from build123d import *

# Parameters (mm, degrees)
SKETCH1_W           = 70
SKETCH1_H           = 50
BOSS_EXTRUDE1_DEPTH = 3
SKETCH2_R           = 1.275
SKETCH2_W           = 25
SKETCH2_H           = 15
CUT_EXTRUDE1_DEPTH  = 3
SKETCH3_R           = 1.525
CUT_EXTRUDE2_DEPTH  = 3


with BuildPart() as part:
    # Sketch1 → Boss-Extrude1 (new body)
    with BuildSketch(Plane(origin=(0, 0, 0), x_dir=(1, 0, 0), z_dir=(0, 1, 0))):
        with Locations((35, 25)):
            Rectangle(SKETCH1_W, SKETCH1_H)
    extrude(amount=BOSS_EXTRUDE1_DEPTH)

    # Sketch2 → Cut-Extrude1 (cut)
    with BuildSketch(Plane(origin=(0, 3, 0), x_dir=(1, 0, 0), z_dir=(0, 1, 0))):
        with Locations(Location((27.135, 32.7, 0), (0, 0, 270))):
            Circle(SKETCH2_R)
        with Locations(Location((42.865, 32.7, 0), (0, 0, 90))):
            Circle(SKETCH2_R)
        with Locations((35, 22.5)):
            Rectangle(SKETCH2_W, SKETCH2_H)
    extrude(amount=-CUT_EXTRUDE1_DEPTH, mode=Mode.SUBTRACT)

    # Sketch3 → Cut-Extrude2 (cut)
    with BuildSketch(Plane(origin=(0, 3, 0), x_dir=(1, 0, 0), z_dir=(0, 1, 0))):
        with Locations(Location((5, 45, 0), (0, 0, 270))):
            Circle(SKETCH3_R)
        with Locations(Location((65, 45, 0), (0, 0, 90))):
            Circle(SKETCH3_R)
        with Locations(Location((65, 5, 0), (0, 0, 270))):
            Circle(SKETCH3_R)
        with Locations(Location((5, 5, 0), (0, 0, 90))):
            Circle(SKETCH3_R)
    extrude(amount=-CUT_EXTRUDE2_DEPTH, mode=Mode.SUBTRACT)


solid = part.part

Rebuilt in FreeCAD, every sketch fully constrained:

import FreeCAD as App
import Part
import Sketcher

V = App.Vector
Q = App.Units.Quantity


def add_polygon(sketch, points):
    """Adds a closed chain of lines whose ends are joined by coincident constraints."""
    first, n = sketch.GeometryCount, len(points)
    for a, b in zip(points, points[1:] + points[:1]):
        sketch.addGeometry(Part.LineSegment(App.Vector(*a, 0), App.Vector(*b, 0)), False)
    for i in range(n):
        sketch.addConstraint(Sketcher.Constraint("Coincident", first + i, 2, first + (i + 1) % n, 1))

doc = App.newDocument("Part")
params = doc.addObject("Spreadsheet::Sheet", "Params")
for row, (alias, value) in enumerate([
    ("sketch1_width", "70 mm"),
    ("sketch1_height", "50 mm"),
    ("pad1_length", "3 mm"),
    ("sketch2_diameter", "2.55 mm"),
    ("sketch2_width", "25 mm"),
    ("sketch2_height", "15 mm"),
    ("pocket1_length", "3 mm"),
    ("sketch3_diameter", "3.05 mm"),
    ("pocket2_length", "3 mm"),
], start=1):
    params.set(f"A{row}", alias)
    params.set(f"B{row}", "=" + value)
    params.setAlias(f"B{row}", alias)

body = doc.addObject("PartDesign::Body", "Body")

# Sketch on XZ plane
sketch1 = body.newObject("Sketcher::SketchObject", "Sketch")
sketch1.AttachmentSupport = (doc.getObject("XZ_Plane"), [""])
sketch1.MapMode = "FlatFace"
add_polygon(sketch1, [(0, -50), (0, 0), (70, 0), (70, -50)])  # lines 0-3
sketch1.addConstraint([
    Sketcher.Constraint("Vertical", 0),
    Sketcher.Constraint("Horizontal", 1),
    Sketcher.Constraint("Vertical", 2),
    Sketcher.Constraint("Horizontal", 3),
    Sketcher.Constraint("Coincident", 0, 2, -1, 1),
    Sketcher.Constraint("DistanceX", 1, 1, 1, 2, Q("70 mm")),
    Sketcher.Constraint("DistanceY", 0, 1, 0, 2, Q("50 mm")),
])
sketch1.setExpression("Constraints[9]", "Params.sketch1_width")
sketch1.setExpression("Constraints[10]", "Params.sketch1_height")
pad1 = body.newObject("PartDesign::Pad", "Pad")
pad1.Profile = sketch1
pad1.setExpression("Length", "Params.pad1_length")
pad1.Reversed = True

# Sketch on XZ plane
sketch2 = body.newObject("Sketcher::SketchObject", "Sketch001")
sketch2.AttachmentSupport = (doc.getObject("XZ_Plane"), [""])
sketch2.MapMode = "FlatFace"
sketch2.AttachmentOffset = App.Placement(V(0, 0, -3), App.Rotation())
sketch2.addGeometry(Part.Circle(V(27.1, -32.7, 0), V(0, 0, 1), 1.3), False)  # 0
sketch2.addGeometry(Part.Circle(V(42.9, -32.7, 0), V(0, 0, 1), 1.3), False)  # 1
add_polygon(sketch2, [(22.5, -30), (22.5, -15), (47.5, -15), (47.5, -30)])  # lines 2-5
sketch2.addConstraint([
    Sketcher.Constraint("Vertical", 2),
    Sketcher.Constraint("Horizontal", 3),
    Sketcher.Constraint("Vertical", 4),
    Sketcher.Constraint("Horizontal", 5),
    Sketcher.Constraint("Equal", 0, 1),
    Sketcher.Constraint("Horizontal", 0, 3, 1, 3),
    Sketcher.Constraint("Diameter", 0, Q("2.55 mm")),
    Sketcher.Constraint("DistanceX", 3, 1, 3, 2, Q("25 mm")),
    Sketcher.Constraint("DistanceY", 2, 1, 2, 2, Q("15 mm")),
    Sketcher.Constraint("DistanceY", 2, 2, -1, 1, Q("15 mm")),
    Sketcher.Constraint("DistanceY", 0, 3, -1, 1, Q("32.7 mm")),
    Sketcher.Constraint("DistanceX", -1, 1, 2, 2, Q("22.5 mm")),
    Sketcher.Constraint("DistanceX", 0, 3, 1, 3, Q("15.73 mm")),
    Sketcher.Constraint("DistanceX", -1, 1, 0, 3, Q("27.135 mm")),
])
sketch2.setExpression("Constraints[10]", "Params.sketch2_diameter")
sketch2.setExpression("Constraints[11]", "Params.sketch2_width")
sketch2.setExpression("Constraints[12]", "Params.sketch2_height")
pocket1 = body.newObject("PartDesign::Pocket", "Pocket")
pocket1.Profile = sketch2
pocket1.setExpression("Length", "Params.pocket1_length")
pocket1.Reversed = True

# Sketch on XZ plane
sketch3 = body.newObject("Sketcher::SketchObject", "Sketch002")
sketch3.AttachmentSupport = (doc.getObject("XZ_Plane"), [""])
sketch3.MapMode = "FlatFace"
sketch3.AttachmentOffset = App.Placement(V(0, 0, -3), App.Rotation())
sketch3.addGeometry([
    Part.Circle(V(5, -45, 0), V(0, 0, 1), 1.5),
    Part.Circle(V(65, -45, 0), V(0, 0, 1), 1.5),
    Part.Circle(V(65, -5, 0), V(0, 0, 1), 1.5),
    Part.Circle(V(5, -5, 0), V(0, 0, 1), 1.5),
], False)
sketch3.addConstraint([
    Sketcher.Constraint("Equal", 0, 1),
    Sketcher.Constraint("Equal", 1, 2),
    Sketcher.Constraint("Equal", 2, 3),
    Sketcher.Constraint("Horizontal", 0, 3, 1, 3),
    Sketcher.Constraint("Horizontal", 2, 3, 3, 3),
    Sketcher.Constraint("Vertical", 1, 3, 2, 3),
    Sketcher.Constraint("Vertical", 0, 3, 3, 3),
    Sketcher.Constraint("Diameter", 0, Q("3.05 mm")),
    Sketcher.Constraint("DistanceX", -1, 1, 0, 3, Q("5 mm")),
    Sketcher.Constraint("DistanceY", 0, 3, -1, 1, Q("45 mm")),
    Sketcher.Constraint("DistanceX", -1, 1, 1, 3, Q("65 mm")),
    Sketcher.Constraint("DistanceY", 2, 3, -1, 1, Q("5 mm")),
])
sketch3.setExpression("Constraints[7]", "Params.sketch3_diameter")
pocket2 = body.newObject("PartDesign::Pocket", "Pocket001")
pocket2.Profile = sketch3
pocket2.setExpression("Length", "Params.pocket2_length")
pocket2.Reversed = True

doc.recompute()
